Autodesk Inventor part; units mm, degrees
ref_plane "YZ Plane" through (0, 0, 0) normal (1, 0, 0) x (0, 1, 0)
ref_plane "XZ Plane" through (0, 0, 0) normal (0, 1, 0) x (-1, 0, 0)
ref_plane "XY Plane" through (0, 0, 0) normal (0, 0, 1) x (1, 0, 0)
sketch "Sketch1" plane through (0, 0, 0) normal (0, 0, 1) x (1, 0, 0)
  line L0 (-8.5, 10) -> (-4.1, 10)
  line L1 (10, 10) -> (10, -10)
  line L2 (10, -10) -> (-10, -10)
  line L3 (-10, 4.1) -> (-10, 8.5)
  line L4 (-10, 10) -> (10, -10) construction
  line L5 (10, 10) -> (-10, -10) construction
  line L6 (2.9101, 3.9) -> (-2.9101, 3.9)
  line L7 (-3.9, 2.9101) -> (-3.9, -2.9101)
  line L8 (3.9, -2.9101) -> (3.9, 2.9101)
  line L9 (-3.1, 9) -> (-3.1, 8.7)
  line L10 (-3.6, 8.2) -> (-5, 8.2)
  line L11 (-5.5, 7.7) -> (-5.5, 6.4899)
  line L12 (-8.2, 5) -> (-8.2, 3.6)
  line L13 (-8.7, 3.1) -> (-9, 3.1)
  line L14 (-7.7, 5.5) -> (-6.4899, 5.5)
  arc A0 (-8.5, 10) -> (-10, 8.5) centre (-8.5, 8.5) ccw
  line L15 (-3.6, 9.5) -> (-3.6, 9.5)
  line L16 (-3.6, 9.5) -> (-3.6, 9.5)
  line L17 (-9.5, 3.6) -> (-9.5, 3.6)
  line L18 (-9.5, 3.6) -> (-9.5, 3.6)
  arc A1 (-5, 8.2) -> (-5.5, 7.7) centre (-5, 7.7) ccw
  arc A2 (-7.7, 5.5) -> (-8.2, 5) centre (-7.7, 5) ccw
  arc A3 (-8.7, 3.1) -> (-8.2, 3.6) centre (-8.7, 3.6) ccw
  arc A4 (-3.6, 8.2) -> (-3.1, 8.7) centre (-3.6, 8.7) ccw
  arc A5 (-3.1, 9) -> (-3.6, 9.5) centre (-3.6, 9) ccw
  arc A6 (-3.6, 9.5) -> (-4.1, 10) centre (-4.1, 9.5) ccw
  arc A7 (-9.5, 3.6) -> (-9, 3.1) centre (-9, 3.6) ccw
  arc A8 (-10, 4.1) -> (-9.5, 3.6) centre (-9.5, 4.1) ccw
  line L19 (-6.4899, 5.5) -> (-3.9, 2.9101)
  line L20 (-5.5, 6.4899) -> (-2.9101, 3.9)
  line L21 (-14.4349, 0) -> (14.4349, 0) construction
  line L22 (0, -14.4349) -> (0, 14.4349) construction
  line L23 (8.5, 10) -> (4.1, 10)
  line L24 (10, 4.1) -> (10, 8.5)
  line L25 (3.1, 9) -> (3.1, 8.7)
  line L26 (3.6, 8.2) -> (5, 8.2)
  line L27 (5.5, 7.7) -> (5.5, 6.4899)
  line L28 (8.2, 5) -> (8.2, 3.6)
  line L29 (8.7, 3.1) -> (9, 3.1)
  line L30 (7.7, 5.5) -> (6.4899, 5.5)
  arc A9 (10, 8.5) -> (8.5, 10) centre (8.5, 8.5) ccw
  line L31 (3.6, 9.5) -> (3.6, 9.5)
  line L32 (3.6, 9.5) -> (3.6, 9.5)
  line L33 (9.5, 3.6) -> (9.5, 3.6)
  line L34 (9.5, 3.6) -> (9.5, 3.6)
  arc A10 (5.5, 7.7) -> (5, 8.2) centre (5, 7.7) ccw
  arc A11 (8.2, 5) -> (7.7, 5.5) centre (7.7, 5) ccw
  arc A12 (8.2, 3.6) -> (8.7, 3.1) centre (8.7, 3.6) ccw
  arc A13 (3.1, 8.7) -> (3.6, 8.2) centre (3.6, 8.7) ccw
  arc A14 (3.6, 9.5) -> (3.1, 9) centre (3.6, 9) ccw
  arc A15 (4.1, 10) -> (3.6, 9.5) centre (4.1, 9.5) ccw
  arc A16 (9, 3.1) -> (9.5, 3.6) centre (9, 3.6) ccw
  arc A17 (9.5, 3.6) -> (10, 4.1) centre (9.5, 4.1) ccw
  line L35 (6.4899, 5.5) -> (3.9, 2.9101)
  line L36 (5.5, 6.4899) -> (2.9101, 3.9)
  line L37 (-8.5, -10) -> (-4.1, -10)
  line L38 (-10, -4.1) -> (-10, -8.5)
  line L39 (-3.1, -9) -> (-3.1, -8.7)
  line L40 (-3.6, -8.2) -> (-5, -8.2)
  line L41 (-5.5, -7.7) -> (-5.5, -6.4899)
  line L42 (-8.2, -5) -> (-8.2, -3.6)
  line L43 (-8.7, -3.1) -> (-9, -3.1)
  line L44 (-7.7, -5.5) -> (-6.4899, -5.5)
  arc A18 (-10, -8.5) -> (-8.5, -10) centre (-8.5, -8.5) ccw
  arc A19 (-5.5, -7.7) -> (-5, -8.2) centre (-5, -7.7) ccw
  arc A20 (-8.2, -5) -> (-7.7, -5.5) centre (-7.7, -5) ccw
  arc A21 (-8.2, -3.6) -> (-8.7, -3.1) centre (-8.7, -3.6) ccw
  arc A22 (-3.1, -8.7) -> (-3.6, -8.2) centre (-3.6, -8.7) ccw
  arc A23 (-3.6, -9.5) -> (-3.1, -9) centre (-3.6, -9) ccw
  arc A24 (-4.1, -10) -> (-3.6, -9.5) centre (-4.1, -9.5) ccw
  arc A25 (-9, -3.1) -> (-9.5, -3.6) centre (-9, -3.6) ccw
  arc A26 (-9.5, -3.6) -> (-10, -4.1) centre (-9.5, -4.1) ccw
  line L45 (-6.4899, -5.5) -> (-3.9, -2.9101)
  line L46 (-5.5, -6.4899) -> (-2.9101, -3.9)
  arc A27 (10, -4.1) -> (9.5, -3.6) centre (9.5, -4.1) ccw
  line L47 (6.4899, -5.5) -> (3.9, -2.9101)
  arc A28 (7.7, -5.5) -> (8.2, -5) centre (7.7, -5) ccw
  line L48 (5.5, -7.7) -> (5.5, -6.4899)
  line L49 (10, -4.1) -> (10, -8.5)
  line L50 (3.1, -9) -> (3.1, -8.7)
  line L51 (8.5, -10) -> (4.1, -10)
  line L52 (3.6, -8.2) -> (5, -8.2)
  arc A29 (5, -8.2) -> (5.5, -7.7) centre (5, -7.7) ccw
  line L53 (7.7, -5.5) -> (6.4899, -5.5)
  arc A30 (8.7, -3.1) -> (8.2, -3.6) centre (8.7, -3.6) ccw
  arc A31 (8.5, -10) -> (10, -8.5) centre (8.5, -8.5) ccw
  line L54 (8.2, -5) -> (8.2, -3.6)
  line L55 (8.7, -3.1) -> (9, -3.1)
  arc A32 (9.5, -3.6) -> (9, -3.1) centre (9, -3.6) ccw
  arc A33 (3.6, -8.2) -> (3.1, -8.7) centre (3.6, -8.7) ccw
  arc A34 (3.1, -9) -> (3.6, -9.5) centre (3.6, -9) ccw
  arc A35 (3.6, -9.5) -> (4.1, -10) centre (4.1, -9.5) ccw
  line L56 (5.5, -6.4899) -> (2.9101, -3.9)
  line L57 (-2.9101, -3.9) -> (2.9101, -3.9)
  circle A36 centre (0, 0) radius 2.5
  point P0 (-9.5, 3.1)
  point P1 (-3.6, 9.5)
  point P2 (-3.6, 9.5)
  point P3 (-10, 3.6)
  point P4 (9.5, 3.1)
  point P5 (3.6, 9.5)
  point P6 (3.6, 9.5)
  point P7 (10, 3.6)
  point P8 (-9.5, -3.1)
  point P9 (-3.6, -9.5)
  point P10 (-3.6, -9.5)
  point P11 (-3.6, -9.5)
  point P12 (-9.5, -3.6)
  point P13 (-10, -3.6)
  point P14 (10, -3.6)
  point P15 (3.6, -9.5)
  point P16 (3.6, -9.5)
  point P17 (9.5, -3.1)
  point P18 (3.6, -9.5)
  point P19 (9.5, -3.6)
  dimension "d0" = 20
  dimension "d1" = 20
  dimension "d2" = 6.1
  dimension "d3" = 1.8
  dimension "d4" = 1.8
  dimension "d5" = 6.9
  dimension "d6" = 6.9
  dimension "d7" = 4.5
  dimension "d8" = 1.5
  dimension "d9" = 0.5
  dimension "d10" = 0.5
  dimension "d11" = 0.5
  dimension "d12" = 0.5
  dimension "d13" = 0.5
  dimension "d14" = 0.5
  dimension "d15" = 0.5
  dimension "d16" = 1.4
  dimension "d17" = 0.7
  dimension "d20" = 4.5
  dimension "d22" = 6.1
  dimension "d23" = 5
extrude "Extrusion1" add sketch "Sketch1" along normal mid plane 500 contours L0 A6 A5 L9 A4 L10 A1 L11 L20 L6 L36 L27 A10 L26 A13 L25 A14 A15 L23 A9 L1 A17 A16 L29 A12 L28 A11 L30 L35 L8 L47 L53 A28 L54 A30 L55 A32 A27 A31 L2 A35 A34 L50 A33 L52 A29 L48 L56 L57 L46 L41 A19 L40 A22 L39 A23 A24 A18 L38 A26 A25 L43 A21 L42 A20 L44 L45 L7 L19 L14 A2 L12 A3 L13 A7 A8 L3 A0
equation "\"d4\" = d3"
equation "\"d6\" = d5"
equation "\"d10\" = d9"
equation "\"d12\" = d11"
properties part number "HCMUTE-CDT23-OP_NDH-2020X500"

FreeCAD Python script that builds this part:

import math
import FreeCAD as App
import Part
import Sketcher
from FreeCAD import Vector

doc = App.newDocument("Part")
params = doc.addObject("Spreadsheet::Sheet", "Params")
for row, (alias, value) in enumerate([
    ("sketch1_diameter", "5 mm"),
    ("sketch1_radius", "1.5 mm"),
    ("sketch1_radius2", "0.5 mm"),
    ("sketch1_width", "1.4 mm"),
    ("sketch1_width2", "4.4 mm"),
    ("pad1_length", "500 mm"),
], start=1):
    params.set(f"A{row}", alias)
    params.set(f"B{row}", "=" + value)
    params.setAlias(f"B{row}", alias)

body = doc.addObject("PartDesign::Body", "Body")

# Sketch on XY plane
sketch1 = doc.addObject("Sketcher::SketchObject", "Sketch")
body.addObject(sketch1)
sketch1.AttachmentSupport = (doc.XY_Plane, [""])
sketch1.MapMode = "FlatFace"
sketch1.addGeometry(Part.LineSegment(Vector(-4.1, 10, 0), Vector(-8.5, 10, 0)), False)
sketch1.addGeometry(Part.ArcOfCircle(Part.Circle(Vector(-8.5, 8.5, 0), Vector(0, 0, 1), 1.5), math.radians(90), math.radians(180)), False)
sketch1.addGeometry(Part.LineSegment(Vector(-10, 8.5, 0), Vector(-10, 4.1, 0)), False)
sketch1.addGeometry(Part.ArcOfCircle(Part.Circle(Vector(-9.5, 4.1, 0), Vector(0, 0, 1), 0.5), math.radians(180), math.radians(270)), False)
sketch1.addGeometry(Part.ArcOfCircle(Part.Circle(Vector(-9, 3.6, 0), Vector(0, 0, 1), 0.5), math.radians(180), math.radians(270)), False)
sketch1.addGeometry(Part.LineSegment(Vector(-9, 3.1, 0), Vector(-8.7, 3.1, 0)), False)
sketch1.addGeometry(Part.ArcOfCircle(Part.Circle(Vector(-8.7, 3.6, 0), Vector(0, 0, 1), 0.5), math.radians(-90), math.radians(0)), False)
sketch1.addGeometry(Part.LineSegment(Vector(-8.2, 3.6, 0), Vector(-8.2, 5, 0)), False)
sketch1.addGeometry(Part.ArcOfCircle(Part.Circle(Vector(-7.7, 5, 0), Vector(0, 0, 1), 0.5), math.radians(90), math.radians(180)), False)
sketch1.addGeometry(Part.LineSegment(Vector(-7.7, 5.5, 0), Vector(-6.49, 5.5, 0)), False)
sketch1.addGeometry(Part.LineSegment(Vector(-6.49, 5.5, 0), Vector(-3.9, 2.91, 0)), False)
sketch1.addGeometry(Part.LineSegment(Vector(-3.9, 2.91, 0), Vector(-3.9, -2.91, 0)), False)
sketch1.addGeometry(Part.LineSegment(Vector(-3.9, -2.91, 0), Vector(-6.49, -5.5, 0)), False)
sketch1.addGeometry(Part.LineSegment(Vector(-6.49, -5.5, 0), Vector(-7.7, -5.5, 0)), False)
sketch1.addGeometry(Part.ArcOfCircle(Part.Circle(Vector(-7.7, -5, 0), Vector(0, 0, 1), 0.5), math.radians(180), math.radians(270)), False)
sketch1.addGeometry(Part.LineSegment(Vector(-8.2, -5, 0), Vector(-8.2, -3.6, 0)), False)
sketch1.addGeometry(Part.ArcOfCircle(Part.Circle(Vector(-8.7, -3.6, 0), Vector(0, 0, 1), 0.5), math.radians(0), math.radians(90)), False)
sketch1.addGeometry(Part.LineSegment(Vector(-8.7, -3.1, 0), Vector(-9, -3.1, 0)), False)
sketch1.addGeometry(Part.ArcOfCircle(Part.Circle(Vector(-9, -3.6, 0), Vector(0, 0, 1), 0.5), math.radians(90), math.radians(180)), False)
sketch1.addGeometry(Part.ArcOfCircle(Part.Circle(Vector(-9.5, -4.1, 0), Vector(0, 0, 1), 0.5), math.radians(90), math.radians(180)), False)
sketch1.addGeometry(Part.LineSegment(Vector(-10, -4.1, 0), Vector(-10, -8.5, 0)), False)
sketch1.addGeometry(Part.ArcOfCircle(Part.Circle(Vector(-8.5, -8.5, 0), Vector(0, 0, 1), 1.5), math.radians(180), math.radians(270)), False)
sketch1.addGeometry(Part.LineSegment(Vector(-8.5, -10, 0), Vector(-4.1, -10, 0)), False)
sketch1.addGeometry(Part.ArcOfCircle(Part.Circle(Vector(-4.1, -9.5, 0), Vector(0, 0, 1), 0.5), math.radians(-90), math.radians(0)), False)
sketch1.addGeometry(Part.ArcOfCircle(Part.Circle(Vector(-3.6, -9, 0), Vector(0, 0, 1), 0.5), math.radians(-90), math.radians(0)), False)
sketch1.addGeometry(Part.LineSegment(Vector(-3.1, -9, 0), Vector(-3.1, -8.7, 0)), False)
sketch1.addGeometry(Part.ArcOfCircle(Part.Circle(Vector(-3.6, -8.7, 0), Vector(0, 0, 1), 0.5), math.radians(0), math.radians(90)), False)
sketch1.addGeometry(Part.LineSegment(Vector(-3.6, -8.2, 0), Vector(-5, -8.2, 0)), False)
sketch1.addGeometry(Part.ArcOfCircle(Part.Circle(Vector(-5, -7.7, 0), Vector(0, 0, 1), 0.5), math.radians(180), math.radians(270)), False)
sketch1.addGeometry(Part.LineSegment(Vector(-5.5, -7.7, 0), Vector(-5.5, -6.49, 0)), False)
sketch1.addGeometry(Part.LineSegment(Vector(-5.5, -6.49, 0), Vector(-2.91, -3.9, 0)), False)
sketch1.addGeometry(Part.LineSegment(Vector(-2.91, -3.9, 0), Vector(2.91, -3.9, 0)), False)
sketch1.addGeometry(Part.LineSegment(Vector(2.91, -3.9, 0), Vector(5.5, -6.49, 0)), False)
sketch1.addGeometry(Part.LineSegment(Vector(5.5, -6.49, 0), Vector(5.5, -7.7, 0)), False)
sketch1.addGeometry(Part.ArcOfCircle(Part.Circle(Vector(5, -7.7, 0), Vector(0, 0, 1), 0.5), math.radians(-90), math.radians(0)), False)
sketch1.addGeometry(Part.LineSegment(Vector(5, -8.2, 0), Vector(3.6, -8.2, 0)), False)
sketch1.addGeometry(Part.ArcOfCircle(Part.Circle(Vector(3.6, -8.7, 0), Vector(0, 0, 1), 0.5), math.radians(90), math.radians(180)), False)
sketch1.addGeometry(Part.LineSegment(Vector(3.1, -8.7, 0), Vector(3.1, -9, 0)), False)
sketch1.addGeometry(Part.ArcOfCircle(Part.Circle(Vector(3.6, -9, 0), Vector(0, 0, 1), 0.5), math.radians(180), math.radians(270)), False)
sketch1.addGeometry(Part.ArcOfCircle(Part.Circle(Vector(4.1, -9.5, 0), Vector(0, 0, 1), 0.5), math.radians(180), math.radians(270)), False)
sketch1.addGeometry(Part.LineSegment(Vector(4.1, -10, 0), Vector(8.5, -10, 0)), False)
sketch1.addGeometry(Part.ArcOfCircle(Part.Circle(Vector(8.5, -8.5, 0), Vector(0, 0, 1), 1.5), math.radians(-90), math.radians(0)), False)
sketch1.addGeometry(Part.LineSegment(Vector(10, -8.5, 0), Vector(10, -4.1, 0)), False)
sketch1.addGeometry(Part.ArcOfCircle(Part.Circle(Vector(9.5, -4.1, 0), Vector(0, 0, 1), 0.5), math.radians(0), math.radians(90)), False)
sketch1.addGeometry(Part.ArcOfCircle(Part.Circle(Vector(9, -3.6, 0), Vector(0, 0, 1), 0.5), math.radians(0), math.radians(90)), False)
sketch1.addGeometry(Part.LineSegment(Vector(9, -3.1, 0), Vector(8.7, -3.1, 0)), False)
sketch1.addGeometry(Part.ArcOfCircle(Part.Circle(Vector(8.7, -3.6, 0), Vector(0, 0, 1), 0.5), math.radians(90), math.radians(180)), False)
sketch1.addGeometry(Part.LineSegment(Vector(8.2, -3.6, 0), Vector(8.2, -5, 0)), False)
sketch1.addGeometry(Part.ArcOfCircle(Part.Circle(Vector(7.7, -5, 0), Vector(0, 0, 1), 0.5), math.radians(-90), math.radians(0)), False)
sketch1.addGeometry(Part.LineSegment(Vector(7.7, -5.5, 0), Vector(6.49, -5.5, 0)), False)
sketch1.addGeometry(Part.LineSegment(Vector(6.49, -5.5, 0), Vector(3.9, -2.91, 0)), False)
sketch1.addGeometry(Part.LineSegment(Vector(3.9, -2.91, 0), Vector(3.9, 2.91, 0)), False)
sketch1.addGeometry(Part.LineSegment(Vector(3.9, 2.91, 0), Vector(6.49, 5.5, 0)), False)
sketch1.addGeometry(Part.LineSegment(Vector(6.49, 5.5, 0), Vector(7.7, 5.5, 0)), False)
sketch1.addGeometry(Part.ArcOfCircle(Part.Circle(Vector(7.7, 5, 0), Vector(0, 0, 1), 0.5), math.radians(0), math.radians(90)), False)
sketch1.addGeometry(Part.LineSegment(Vector(8.2, 5, 0), Vector(8.2, 3.6, 0)), False)
sketch1.addGeometry(Part.ArcOfCircle(Part.Circle(Vector(8.7, 3.6, 0), Vector(0, 0, 1), 0.5), math.radians(180), math.radians(270)), False)
sketch1.addGeometry(Part.LineSegment(Vector(8.7, 3.1, 0), Vector(9, 3.1, 0)), False)
sketch1.addGeometry(Part.ArcOfCircle(Part.Circle(Vector(9, 3.6, 0), Vector(0, 0, 1), 0.5), math.radians(-90), math.radians(0)), False)
sketch1.addGeometry(Part.ArcOfCircle(Part.Circle(Vector(9.5, 4.1, 0), Vector(0, 0, 1), 0.5), math.radians(-90), math.radians(0)), False)
sketch1.addGeometry(Part.LineSegment(Vector(10, 4.1, 0), Vector(10, 8.5, 0)), False)
sketch1.addGeometry(Part.ArcOfCircle(Part.Circle(Vector(8.5, 8.5, 0), Vector(0, 0, 1), 1.5), math.radians(0), math.radians(90)), False)
sketch1.addGeometry(Part.LineSegment(Vector(8.5, 10, 0), Vector(4.1, 10, 0)), False)
sketch1.addGeometry(Part.ArcOfCircle(Part.Circle(Vector(4.1, 9.5, 0), Vector(0, 0, 1), 0.5), math.radians(90), math.radians(180)), False)
sketch1.addGeometry(Part.ArcOfCircle(Part.Circle(Vector(3.6, 9, 0), Vector(0, 0, 1), 0.5), math.radians(90), math.radians(180)), False)
sketch1.addGeometry(Part.LineSegment(Vector(3.1, 9, 0), Vector(3.1, 8.7, 0)), False)
sketch1.addGeometry(Part.ArcOfCircle(Part.Circle(Vector(3.6, 8.7, 0), Vector(0, 0, 1), 0.5), math.radians(180), math.radians(270)), False)
sketch1.addGeometry(Part.LineSegment(Vector(3.6, 8.2, 0), Vector(5, 8.2, 0)), False)
sketch1.addGeometry(Part.ArcOfCircle(Part.Circle(Vector(5, 7.7, 0), Vector(0, 0, 1), 0.5), math.radians(0), math.radians(90)), False)
sketch1.addGeometry(Part.LineSegment(Vector(5.5, 7.7, 0), Vector(5.5, 6.49, 0)), False)
sketch1.addGeometry(Part.LineSegment(Vector(5.5, 6.49, 0), Vector(2.91, 3.9, 0)), False)
sketch1.addGeometry(Part.LineSegment(Vector(2.91, 3.9, 0), Vector(-2.91, 3.9, 0)), False)
sketch1.addGeometry(Part.LineSegment(Vector(-2.91, 3.9, 0), Vector(-5.5, 6.49, 0)), False)
sketch1.addGeometry(Part.LineSegment(Vector(-5.5, 6.49, 0), Vector(-5.5, 7.7, 0)), False)
sketch1.addGeometry(Part.ArcOfCircle(Part.Circle(Vector(-5, 7.7, 0), Vector(0, 0, 1), 0.5), math.radians(90), math.radians(180)), False)
sketch1.addGeometry(Part.LineSegment(Vector(-5, 8.2, 0), Vector(-3.6, 8.2, 0)), False)
sketch1.addGeometry(Part.ArcOfCircle(Part.Circle(Vector(-3.6, 8.7, 0), Vector(0, 0, 1), 0.5), math.radians(-90), math.radians(0)), False)
sketch1.addGeometry(Part.LineSegment(Vector(-3.1, 8.7, 0), Vector(-3.1, 9, 0)), False)
sketch1.addGeometry(Part.ArcOfCircle(Part.Circle(Vector(-3.6, 9, 0), Vector(0, 0, 1), 0.5), math.radians(0), math.radians(90)), False)
sketch1.addGeometry(Part.ArcOfCircle(Part.Circle(Vector(-4.1, 9.5, 0), Vector(0, 0, 1), 0.5), math.radians(0), math.radians(90)), False)
sketch1.addGeometry(Part.Circle(Vector(0, 0, 0), Vector(0, 0, 1), 2.5), False)
sketch1.addConstraint(Sketcher.Constraint("Tangent", 0, 2, 1, 1))
sketch1.addConstraint(Sketcher.Constraint("Tangent", 1, 2, 2, 1))
sketch1.addConstraint(Sketcher.Constraint("Tangent", 2, 2, 3, 1))
sketch1.addConstraint(Sketcher.Constraint("Coincident", 3, 2, 4, 1))
sketch1.addConstraint(Sketcher.Constraint("Tangent", 4, 2, 5, 1))
sketch1.addConstraint(Sketcher.Constraint("Tangent", 5, 2, 6, 1))
sketch1.addConstraint(Sketcher.Constraint("Tangent", 6, 2, 7, 1))
sketch1.addConstraint(Sketcher.Constraint("Tangent", 7, 2, 8, 2))
sketch1.addConstraint(Sketcher.Constraint("Tangent", 8, 1, 9, 1))
sketch1.addConstraint(Sketcher.Constraint("Coincident", 9, 2, 10, 1))
sketch1.addConstraint(Sketcher.Constraint("Coincident", 10, 2, 11, 1))
sketch1.addConstraint(Sketcher.Constraint("Coincident", 11, 2, 12, 1))
sketch1.addConstraint(Sketcher.Constraint("Coincident", 12, 2, 13, 1))
sketch1.addConstraint(Sketcher.Constraint("Tangent", 13, 2, 14, 2))
sketch1.addConstraint(Sketcher.Constraint("Tangent", 14, 1, 15, 1))
sketch1.addConstraint(Sketcher.Constraint("Tangent", 15, 2, 16, 1))
sketch1.addConstraint(Sketcher.Constraint("Tangent", 16, 2, 17, 1))
sketch1.addConstraint(Sketcher.Constraint("Tangent", 17, 2, 18, 1))
sketch1.addConstraint(Sketcher.Constraint("Coincident", 18, 2, 19, 1))
sketch1.addConstraint(Sketcher.Constraint("Tangent", 19, 2, 20, 1))
sketch1.addConstraint(Sketcher.Constraint("Tangent", 20, 2, 21, 1))
sketch1.addConstraint(Sketcher.Constraint("Tangent", 21, 2, 22, 1))
sketch1.addConstraint(Sketcher.Constraint("Tangent", 22, 2, 23, 1))
sketch1.addConstraint(Sketcher.Constraint("Coincident", 23, 2, 24, 1))
sketch1.addConstraint(Sketcher.Constraint("Tangent", 24, 2, 25, 1))
sketch1.addConstraint(Sketcher.Constraint("Tangent", 25, 2, 26, 1))
sketch1.addConstraint(Sketcher.Constraint("Tangent", 26, 2, 27, 1))
sketch1.addConstraint(Sketcher.Constraint("Tangent", 27, 2, 28, 2))
sketch1.addConstraint(Sketcher.Constraint("Tangent", 28, 1, 29, 1))
sketch1.addConstraint(Sketcher.Constraint("Coincident", 29, 2, 30, 1))
sketch1.addConstraint(Sketcher.Constraint("Coincident", 30, 2, 31, 1))
sketch1.addConstraint(Sketcher.Constraint("Coincident", 31, 2, 32, 1))
sketch1.addConstraint(Sketcher.Constraint("Coincident", 32, 2, 33, 1))
sketch1.addConstraint(Sketcher.Constraint("Tangent", 33, 2, 34, 2))
sketch1.addConstraint(Sketcher.Constraint("Tangent", 34, 1, 35, 1))
sketch1.addConstraint(Sketcher.Constraint("Tangent", 35, 2, 36, 1))
sketch1.addConstraint(Sketcher.Constraint("Tangent", 36, 2, 37, 1))
sketch1.addConstraint(Sketcher.Constraint("Tangent", 37, 2, 38, 1))
sketch1.addConstraint(Sketcher.Constraint("Coincident", 38, 2, 39, 1))
sketch1.addConstraint(Sketcher.Constraint("Tangent", 39, 2, 40, 1))
sketch1.addConstraint(Sketcher.Constraint("Tangent", 40, 2, 41, 1))
sketch1.addConstraint(Sketcher.Constraint("Tangent", 41, 2, 42, 1))
sketch1.addConstraint(Sketcher.Constraint("Tangent", 42, 2, 43, 1))
sketch1.addConstraint(Sketcher.Constraint("Coincident", 43, 2, 44, 1))
sketch1.addConstraint(Sketcher.Constraint("Tangent", 44, 2, 45, 1))
sketch1.addConstraint(Sketcher.Constraint("Tangent", 45, 2, 46, 1))
sketch1.addConstraint(Sketcher.Constraint("Tangent", 46, 2, 47, 1))
sketch1.addConstraint(Sketcher.Constraint("Tangent", 47, 2, 48, 2))
sketch1.addConstraint(Sketcher.Constraint("Tangent", 48, 1, 49, 1))
sketch1.addConstraint(Sketcher.Constraint("Coincident", 49, 2, 50, 1))
sketch1.addConstraint(Sketcher.Constraint("Coincident", 50, 2, 51, 1))
sketch1.addConstraint(Sketcher.Constraint("Coincident", 51, 2, 52, 1))
sketch1.addConstraint(Sketcher.Constraint("Coincident", 52, 2, 53, 1))
sketch1.addConstraint(Sketcher.Constraint("Tangent", 53, 2, 54, 2))
sketch1.addConstraint(Sketcher.Constraint("Tangent", 54, 1, 55, 1))
sketch1.addConstraint(Sketcher.Constraint("Tangent", 55, 2, 56, 1))
sketch1.addConstraint(Sketcher.Constraint("Tangent", 56, 2, 57, 1))
sketch1.addConstraint(Sketcher.Constraint("Tangent", 57, 2, 58, 1))
sketch1.addConstraint(Sketcher.Constraint("Coincident", 58, 2, 59, 1))
sketch1.addConstraint(Sketcher.Constraint("Tangent", 59, 2, 60, 1))
sketch1.addConstraint(Sketcher.Constraint("Tangent", 60, 2, 61, 1))
sketch1.addConstraint(Sketcher.Constraint("Tangent", 61, 2, 62, 1))
sketch1.addConstraint(Sketcher.Constraint("Tangent", 62, 2, 63, 1))
sketch1.addConstraint(Sketcher.Constraint("Coincident", 63, 2, 64, 1))
sketch1.addConstraint(Sketcher.Constraint("Tangent", 64, 2, 65, 1))
sketch1.addConstraint(Sketcher.Constraint("Tangent", 65, 2, 66, 1))
sketch1.addConstraint(Sketcher.Constraint("Tangent", 66, 2, 67, 1))
sketch1.addConstraint(Sketcher.Constraint("Tangent", 67, 2, 68, 2))
sketch1.addConstraint(Sketcher.Constraint("Tangent", 68, 1, 69, 1))
sketch1.addConstraint(Sketcher.Constraint("Coincident", 69, 2, 70, 1))
sketch1.addConstraint(Sketcher.Constraint("Coincident", 70, 2, 71, 1))
sketch1.addConstraint(Sketcher.Constraint("Coincident", 71, 2, 72, 1))
sketch1.addConstraint(Sketcher.Constraint("Coincident", 72, 2, 73, 1))
sketch1.addConstraint(Sketcher.Constraint("Tangent", 73, 2, 74, 2))
sketch1.addConstraint(Sketcher.Constraint("Tangent", 74, 1, 75, 1))
sketch1.addConstraint(Sketcher.Constraint("Tangent", 75, 2, 76, 1))
sketch1.addConstraint(Sketcher.Constraint("Tangent", 76, 2, 77, 1))
sketch1.addConstraint(Sketcher.Constraint("Tangent", 77, 2, 78, 1))
sketch1.addConstraint(Sketcher.Constraint("Coincident", 78, 2, 79, 1))
sketch1.addConstraint(Sketcher.Constraint("Tangent", 79, 2, 0, 1))
sketch1.addConstraint(Sketcher.Constraint("Horizontal", 0))
sketch1.addConstraint(Sketcher.Constraint("Vertical", 2))
sketch1.addConstraint(Sketcher.Constraint("Horizontal", 5))
sketch1.addConstraint(Sketcher.Constraint("Vertical", 7))
sketch1.addConstraint(Sketcher.Constraint("Horizontal", 9))
sketch1.addConstraint(Sketcher.Constraint("Vertical", 11))
sketch1.addConstraint(Sketcher.Constraint("Horizontal", 13))
sketch1.addConstraint(Sketcher.Constraint("Vertical", 15))
sketch1.addConstraint(Sketcher.Constraint("Horizontal", 17))
sketch1.addConstraint(Sketcher.Constraint("Vertical", 20))
sketch1.addConstraint(Sketcher.Constraint("Horizontal", 22))
sketch1.addConstraint(Sketcher.Constraint("Vertical", 25))
sketch1.addConstraint(Sketcher.Constraint("Horizontal", 27))
sketch1.addConstraint(Sketcher.Constraint("Vertical", 29))
sketch1.addConstraint(Sketcher.Constraint("Horizontal", 31))
sketch1.addConstraint(Sketcher.Constraint("Vertical", 33))
sketch1.addConstraint(Sketcher.Constraint("Horizontal", 35))
sketch1.addConstraint(Sketcher.Constraint("Vertical", 37))
sketch1.addConstraint(Sketcher.Constraint("Horizontal", 40))
sketch1.addConstraint(Sketcher.Constraint("Vertical", 42))
sketch1.addConstraint(Sketcher.Constraint("Horizontal", 45))
sketch1.addConstraint(Sketcher.Constraint("Vertical", 47))
sketch1.addConstraint(Sketcher.Constraint("Horizontal", 49))
sketch1.addConstraint(Sketcher.Constraint("Vertical", 51))
sketch1.addConstraint(Sketcher.Constraint("Horizontal", 53))
sketch1.addConstraint(Sketcher.Constraint("Vertical", 55))
sketch1.addConstraint(Sketcher.Constraint("Horizontal", 57))
sketch1.addConstraint(Sketcher.Constraint("Vertical", 60))
sketch1.addConstraint(Sketcher.Constraint("Horizontal", 62))
sketch1.addConstraint(Sketcher.Constraint("Vertical", 65))
sketch1.addConstraint(Sketcher.Constraint("Horizontal", 67))
sketch1.addConstraint(Sketcher.Constraint("Vertical", 69))
sketch1.addConstraint(Sketcher.Constraint("Horizontal", 71))
sketch1.addConstraint(Sketcher.Constraint("Vertical", 73))
sketch1.addConstraint(Sketcher.Constraint("Horizontal", 75))
sketch1.addConstraint(Sketcher.Constraint("Vertical", 77))
sketch1.addConstraint(Sketcher.Constraint("Coincident", 80, 3, -1, 1))
sketch1.addConstraint(Sketcher.Constraint("Equal", 3, 4))
sketch1.addConstraint(Sketcher.Constraint("Equal", 4, 6))
sketch1.addConstraint(Sketcher.Constraint("Equal", 6, 8))
sketch1.addConstraint(Sketcher.Constraint("Equal", 8, 14))
sketch1.addConstraint(Sketcher.Constraint("Equal", 14, 16))
sketch1.addConstraint(Sketcher.Constraint("Equal", 16, 18))
sketch1.addConstraint(Sketcher.Constraint("Equal", 18, 19))
sketch1.addConstraint(Sketcher.Constraint("Equal", 1, 21))
sketch1.addConstraint(Sketcher.Constraint("Equal", 19, 23))
sketch1.addConstraint(Sketcher.Constraint("Equal", 23, 24))
sketch1.addConstraint(Sketcher.Constraint("Equal", 24, 26))
sketch1.addConstraint(Sketcher.Constraint("Equal", 26, 28))
sketch1.addConstraint(Sketcher.Constraint("Equal", 28, 34))
sketch1.addConstraint(Sketcher.Constraint("Equal", 34, 36))
sketch1.addConstraint(Sketcher.Constraint("Equal", 36, 38))
sketch1.addConstraint(Sketcher.Constraint("Equal", 38, 39))
sketch1.addConstraint(Sketcher.Constraint("Equal", 21, 41))
sketch1.addConstraint(Sketcher.Constraint("Equal", 39, 43))
sketch1.addConstraint(Sketcher.Constraint("Equal", 43, 44))
sketch1.addConstraint(Sketcher.Constraint("Equal", 44, 46))
sketch1.addConstraint(Sketcher.Constraint("Equal", 46, 48))
sketch1.addConstraint(Sketcher.Constraint("Equal", 48, 54))
sketch1.addConstraint(Sketcher.Constraint("Equal", 54, 56))
sketch1.addConstraint(Sketcher.Constraint("Equal", 56, 58))
sketch1.addConstraint(Sketcher.Constraint("Equal", 58, 59))
sketch1.addConstraint(Sketcher.Constraint("Equal", 41, 61))
sketch1.addConstraint(Sketcher.Constraint("Equal", 59, 63))
sketch1.addConstraint(Sketcher.Constraint("Equal", 63, 64))
sketch1.addConstraint(Sketcher.Constraint("Equal", 64, 66))
sketch1.addConstraint(Sketcher.Constraint("Equal", 66, 68))
sketch1.addConstraint(Sketcher.Constraint("Equal", 68, 74))
sketch1.addConstraint(Sketcher.Constraint("Equal", 74, 76))
sketch1.addConstraint(Sketcher.Constraint("Equal", 76, 78))
sketch1.addConstraint(Sketcher.Constraint("Equal", 78, 79))
sketch1.addConstraint(Sketcher.Constraint("Symmetric", 1, 3, 41, 3, -1, 1))
sketch1.addConstraint(Sketcher.Constraint("Symmetric", 4, 3, 44, 3, -1, 1))
sketch1.addConstraint(Sketcher.Constraint("Symmetric", 8, 3, 48, 3, -1, 1))
sketch1.addConstraint(Sketcher.Constraint("Symmetric", 14, 3, 54, 3, -1, 1))
sketch1.addConstraint(Sketcher.Constraint("Symmetric", 18, 3, 58, 3, -1, 1))
sketch1.addConstraint(Sketcher.Constraint("Symmetric", 19, 3, 59, 3, -1, 1))
sketch1.addConstraint(Sketcher.Constraint("Symmetric", 23, 3, 63, 3, -1, 1))
sketch1.addConstraint(Sketcher.Constraint("Symmetric", 24, 3, 64, 3, -1, 1))
sketch1.addConstraint(Sketcher.Constraint("Symmetric", 28, 3, 68, 3, -1, 1))
sketch1.addConstraint(Sketcher.Constraint("Symmetric", 34, 3, 74, 3, -1, 1))
sketch1.addConstraint(Sketcher.Constraint("Symmetric", 38, 3, 78, 3, -1, 1))
sketch1.addConstraint(Sketcher.Constraint("Symmetric", 10, 2, 50, 2, -1, 1))
sketch1.addConstraint(Sketcher.Constraint("Symmetric", 30, 2, 70, 2, -1, 1))
sketch1.addConstraint(Sketcher.Constraint("Symmetric", 28, 3, 34, 3, -2))
sketch1.addConstraint(Sketcher.Constraint("Symmetric", 24, 3, 38, 3, -2))
sketch1.addConstraint(Sketcher.Constraint("Symmetric", 23, 3, 39, 3, -2))
sketch1.addConstraint(Sketcher.Constraint("Symmetric", 19, 3, 43, 3, -2))
sketch1.addConstraint(Sketcher.Constraint("Symmetric", 18, 3, 44, 3, -2))
sketch1.addConstraint(Sketcher.Constraint("Symmetric", 14, 3, 48, 3, -2))
sketch1.addConstraint(Sketcher.Constraint("Perpendicular", 10, 12))
sketch1.addConstraint(Sketcher.Constraint("Parallel", 12, 30))
sketch1.addConstraint(Sketcher.Constraint("Perpendicular", 30, 32))
sketch1.addConstraint(Sketcher.Constraint("Parallel", 32, 50))
sketch1.addConstraint(Sketcher.Constraint("Perpendicular", 50, 52))
sketch1.addConstraint(Sketcher.Constraint("Parallel", 52, 70))
sketch1.addConstraint(Sketcher.Constraint("Perpendicular", 70, 72))
sketch1.addConstraint(Sketcher.Constraint("Horizontal", 3, 3, 59, 3))
sketch1.addConstraint(Sketcher.Constraint("Horizontal", 58, 3, 3, 2))
sketch1.addConstraint(Sketcher.Constraint("Horizontal", 39, 3, 23, 2))
sketch1.addConstraint(Sketcher.Constraint("Horizontal", 29, 2, 32, 2))
sketch1.addConstraint(Sketcher.Constraint("Horizontal", 11, 2, 50, 2))
sketch1.addConstraint(Sketcher.Constraint("Horizontal", 10, 2, 51, 2))
sketch1.addConstraint(Sketcher.Constraint("Horizontal", 69, 2, 72, 2))
sketch1.addConstraint(Sketcher.Constraint("Vertical", 23, 3, 79, 3))
sketch1.addConstraint(Sketcher.Constraint("Vertical", 19, 3, 3, 2))
sketch1.addConstraint(Sketcher.Constraint("Vertical", 9, 2, 12, 2))
sketch1.addConstraint(Sketcher.Constraint("Vertical", 78, 3, 23, 2))
sketch1.addConstraint(Sketcher.Constraint("Equal", 62, 2))
sketch1.addConstraint(Sketcher.Constraint("Equal", 75, 7))
sketch1.addConstraint(Sketcher.Constraint("Equal", 71, 11))
sketch1.addConstraint(Sketcher.Constraint("Equal", 57, 25))
sketch1.addConstraint(Sketcher.Constraint("Equal", 53, 29))
sketch1.addConstraint(Sketcher.Constraint("Equal", 12, 30))
sketch1.addConstraint(Sketcher.Constraint("Diameter", 80, 5.0))
sketch1.addConstraint(Sketcher.Constraint("Radius", 1, 1.5))
sketch1.addConstraint(Sketcher.Constraint("Radius", 3, 0.5))
sketch1.addConstraint(Sketcher.Constraint("DistanceX", 27, 2, 27, 1, 1.4))
sketch1.addConstraint(Sketcher.Constraint("DistanceY", -1, 1, 8, 3, 5.0))
sketch1.addConstraint(Sketcher.Constraint("DistanceX", 0, 2, 0, 1, 4.4))
sketch1.addConstraint(Sketcher.Constraint("DistanceX", 5, 1, 5, 2, 0.3))
sketch1.addConstraint(Sketcher.Constraint("DistanceX", 9, 1, 9, 2, 1.21))
sketch1.addConstraint(Sketcher.Constraint("DistanceX", 10, 2, -1, 1, 3.9))
sketch1.setExpression("Constraints[194]", "Params.sketch1_diameter")
sketch1.setExpression("Constraints[195]", "Params.sketch1_radius")
sketch1.setExpression("Constraints[196]", "Params.sketch1_radius2")
sketch1.setExpression("Constraints[197]", "Params.sketch1_width")
sketch1.setExpression("Constraints[199]", "Params.sketch1_width2")
pad1 = doc.addObject("PartDesign::Pad", "Pad")
body.addObject(pad1)
pad1.Profile = sketch1
pad1.setExpression("Length", "Params.pad1_length")
pad1.Midplane = True

doc.recompute()
